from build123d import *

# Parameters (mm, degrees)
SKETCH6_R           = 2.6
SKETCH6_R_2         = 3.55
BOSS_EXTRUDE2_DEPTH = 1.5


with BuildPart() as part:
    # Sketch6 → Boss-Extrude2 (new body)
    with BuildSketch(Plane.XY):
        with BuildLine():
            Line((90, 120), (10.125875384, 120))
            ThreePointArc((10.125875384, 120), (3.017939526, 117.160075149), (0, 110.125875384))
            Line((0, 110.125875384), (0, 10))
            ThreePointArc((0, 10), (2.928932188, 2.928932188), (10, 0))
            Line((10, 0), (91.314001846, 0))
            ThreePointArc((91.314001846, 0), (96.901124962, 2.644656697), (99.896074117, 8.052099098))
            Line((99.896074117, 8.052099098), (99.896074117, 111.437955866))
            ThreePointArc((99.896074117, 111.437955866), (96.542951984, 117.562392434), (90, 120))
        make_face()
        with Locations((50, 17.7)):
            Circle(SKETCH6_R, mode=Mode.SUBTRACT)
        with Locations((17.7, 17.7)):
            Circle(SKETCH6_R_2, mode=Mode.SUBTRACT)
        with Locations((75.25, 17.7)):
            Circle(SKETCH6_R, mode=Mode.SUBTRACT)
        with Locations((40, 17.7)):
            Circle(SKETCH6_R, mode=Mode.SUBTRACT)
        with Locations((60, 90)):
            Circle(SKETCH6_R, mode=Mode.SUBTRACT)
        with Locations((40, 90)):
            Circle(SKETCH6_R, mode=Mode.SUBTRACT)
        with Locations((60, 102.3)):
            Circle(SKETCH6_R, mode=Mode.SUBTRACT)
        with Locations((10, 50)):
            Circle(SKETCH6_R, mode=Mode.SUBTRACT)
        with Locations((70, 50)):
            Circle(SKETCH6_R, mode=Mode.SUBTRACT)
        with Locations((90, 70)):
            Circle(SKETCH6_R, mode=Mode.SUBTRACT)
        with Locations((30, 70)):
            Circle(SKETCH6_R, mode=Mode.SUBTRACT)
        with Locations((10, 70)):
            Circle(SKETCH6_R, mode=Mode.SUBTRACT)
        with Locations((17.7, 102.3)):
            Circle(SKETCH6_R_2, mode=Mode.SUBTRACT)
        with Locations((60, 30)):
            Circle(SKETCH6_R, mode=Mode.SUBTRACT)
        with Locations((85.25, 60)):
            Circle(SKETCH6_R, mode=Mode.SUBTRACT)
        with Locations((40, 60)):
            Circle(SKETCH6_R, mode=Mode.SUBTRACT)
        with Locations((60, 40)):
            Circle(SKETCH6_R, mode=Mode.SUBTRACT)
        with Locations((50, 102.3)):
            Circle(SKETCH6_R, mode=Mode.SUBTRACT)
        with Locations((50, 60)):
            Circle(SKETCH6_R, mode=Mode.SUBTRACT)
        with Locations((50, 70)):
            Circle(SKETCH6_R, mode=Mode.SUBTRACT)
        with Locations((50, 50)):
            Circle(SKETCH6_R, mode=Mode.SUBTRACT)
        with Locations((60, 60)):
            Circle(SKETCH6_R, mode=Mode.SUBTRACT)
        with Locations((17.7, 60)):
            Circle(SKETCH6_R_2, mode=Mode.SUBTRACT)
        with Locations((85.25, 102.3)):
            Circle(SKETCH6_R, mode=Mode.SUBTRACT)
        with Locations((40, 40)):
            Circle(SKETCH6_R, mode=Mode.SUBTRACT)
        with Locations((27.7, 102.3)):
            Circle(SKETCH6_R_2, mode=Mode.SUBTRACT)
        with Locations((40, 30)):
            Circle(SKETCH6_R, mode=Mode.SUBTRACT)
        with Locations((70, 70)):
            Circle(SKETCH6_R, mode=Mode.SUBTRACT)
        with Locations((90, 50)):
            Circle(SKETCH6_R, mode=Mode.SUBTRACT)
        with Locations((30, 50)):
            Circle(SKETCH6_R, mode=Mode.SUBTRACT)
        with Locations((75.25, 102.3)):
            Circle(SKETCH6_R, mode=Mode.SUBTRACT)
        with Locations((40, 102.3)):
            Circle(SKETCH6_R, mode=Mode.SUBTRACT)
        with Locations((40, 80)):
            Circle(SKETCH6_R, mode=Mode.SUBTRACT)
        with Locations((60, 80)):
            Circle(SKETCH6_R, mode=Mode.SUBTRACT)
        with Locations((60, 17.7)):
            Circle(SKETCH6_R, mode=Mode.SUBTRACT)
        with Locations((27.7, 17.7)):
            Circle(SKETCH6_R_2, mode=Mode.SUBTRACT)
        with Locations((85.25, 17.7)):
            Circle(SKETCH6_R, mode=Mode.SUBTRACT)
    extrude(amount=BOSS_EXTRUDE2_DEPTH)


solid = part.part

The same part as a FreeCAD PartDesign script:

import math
import FreeCAD as App
import Part
import Sketcher

V = App.Vector
Q = App.Units.Quantity

doc = App.newDocument("Part")
body = doc.addObject("PartDesign::Body", "Body")

# Sketch on XY plane
sketch1 = doc.addObject("Sketcher::SketchObject", "Sketch")
body.addObject(sketch1)
sketch1.AttachmentSupport = (doc.XY_Plane, [""])
sketch1.MapMode = "FlatFace"
sketch1.addGeometry(Part.LineSegment(V(90, 120, 0), V(10.125875, 120, 0)), False)
sketch1.addGeometry(Part.ArcOfCircle(Part.Circle(V(10, 110, 0), V(0, 0, 1), 10.000792), math.radians(89.278825), math.radians(179.278825)), False)
sketch1.addGeometry(Part.LineSegment(V(0, 110.125875, 0), V(0, 10, 0)), False)
sketch1.addGeometry(Part.ArcOfCircle(Part.Circle(V(10, 10, 0), V(0, 0, 1), 10), math.radians(180), math.radians(270)), False)
sketch1.addGeometry(Part.LineSegment(V(10, 0, 0), V(91.314002, 0, 0)), False)
sketch1.addGeometry(Part.ArcOfCircle(Part.Circle(V(90, 10, 0), V(0, 0, 1), 10.085961), math.radians(-82.514211), math.radians(-11.1355)), False)
sketch1.addGeometry(Part.LineSegment(V(99.896074, 8.052099, 0), V(99.896074, 111.437956, 0)), False)
sketch1.addGeometry(Part.ArcOfCircle(Part.Circle(V(90, 110, 0), V(0, 0, 1), 10), math.radians(8.267541), math.radians(90)), False)
sketch1.addGeometry(Part.Circle(V(17.7, 17.7, 0), V(0, 0, 1), 3.55), False)
sketch1.addGeometry(Part.Circle(V(27.7, 17.7, 0), V(0, 0, 1), 3.55), False)
sketch1.addGeometry(Part.Circle(V(40, 17.7, 0), V(0, 0, 1), 2.6), False)
sketch1.addGeometry(Part.Circle(V(40, 30, 0), V(0, 0, 1), 2.6), False)
sketch1.addGeometry(Part.Circle(V(10, 50, 0), V(0, 0, 1), 2.6), False)
sketch1.addGeometry(Part.Circle(V(40, 40, 0), V(0, 0, 1), 2.6), False)
sketch1.addGeometry(Part.Circle(V(30, 50, 0), V(0, 0, 1), 2.6), False)
sketch1.addGeometry(Part.Circle(V(50, 17.7, 0), V(0, 0, 1), 2.6), False)
sketch1.addGeometry(Part.Circle(V(60, 17.7, 0), V(0, 0, 1), 2.6), False)
sketch1.addGeometry(Part.Circle(V(60, 30, 0), V(0, 0, 1), 2.6), False)
sketch1.addGeometry(Part.Circle(V(75.25, 17.7, 0), V(0, 0, 1), 2.6), False)
sketch1.addGeometry(Part.Circle(V(85.25, 17.7, 0), V(0, 0, 1), 2.6), False)
sketch1.addGeometry(Part.Circle(V(60, 40, 0), V(0, 0, 1), 2.6), False)
sketch1.addGeometry(Part.Circle(V(50, 50, 0), V(0, 0, 1), 2.6), False)
sketch1.addGeometry(Part.Circle(V(70, 50, 0), V(0, 0, 1), 2.6), False)
sketch1.addGeometry(Part.Circle(V(90, 50, 0), V(0, 0, 1), 2.6), False)
sketch1.addGeometry(Part.Circle(V(17.7, 60, 0), V(0, 0, 1), 3.55), False)
sketch1.addGeometry(Part.Circle(V(10, 70, 0), V(0, 0, 1), 2.6), False)
sketch1.addGeometry(Part.Circle(V(30, 70, 0), V(0, 0, 1), 2.6), False)
sketch1.addGeometry(Part.Circle(V(40, 60, 0), V(0, 0, 1), 2.6), False)
sketch1.addGeometry(Part.Circle(V(40, 80, 0), V(0, 0, 1), 2.6), False)
sketch1.addGeometry(Part.Circle(V(17.7, 102.3, 0), V(0, 0, 1), 3.55), False)
sketch1.addGeometry(Part.Circle(V(27.7, 102.3, 0), V(0, 0, 1), 3.55), False)
sketch1.addGeometry(Part.Circle(V(40, 90, 0), V(0, 0, 1), 2.6), False)
sketch1.addGeometry(Part.Circle(V(40, 102.3, 0), V(0, 0, 1), 2.6), False)
sketch1.addGeometry(Part.Circle(V(50, 60, 0), V(0, 0, 1), 2.6), False)
sketch1.addGeometry(Part.Circle(V(60, 60, 0), V(0, 0, 1), 2.6), False)
sketch1.addGeometry(Part.Circle(V(50, 70, 0), V(0, 0, 1), 2.6), False)
sketch1.addGeometry(Part.Circle(V(70, 70, 0), V(0, 0, 1), 2.6), False)
sketch1.addGeometry(Part.Circle(V(60, 80, 0), V(0, 0, 1), 2.6), False)
sketch1.addGeometry(Part.Circle(V(85.25, 60, 0), V(0, 0, 1), 2.6), False)
sketch1.addGeometry(Part.Circle(V(90, 70, 0), V(0, 0, 1), 2.6), False)
sketch1.addGeometry(Part.Circle(V(60, 90, 0), V(0, 0, 1), 2.6), False)
sketch1.addGeometry(Part.Circle(V(50, 102.3, 0), V(0, 0, 1), 2.6), False)
sketch1.addGeometry(Part.Circle(V(60, 102.3, 0), V(0, 0, 1), 2.6), False)
sketch1.addGeometry(Part.Circle(V(75.25, 102.3, 0), V(0, 0, 1), 2.6), False)
sketch1.addGeometry(Part.Circle(V(85.25, 102.3, 0), V(0, 0, 1), 2.6), False)
sketch1.addConstraint(Sketcher.Constraint("Coincident", 0, 2, 1, 1))
sketch1.addConstraint(Sketcher.Constraint("Coincident", 1, 2, 2, 1))
sketch1.addConstraint(Sketcher.Constraint("Tangent", 2, 2, 3, 1))
sketch1.addConstraint(Sketcher.Constraint("Tangent", 3, 2, 4, 1))
sketch1.addConstraint(Sketcher.Constraint("Coincident", 4, 2, 5, 1))
sketch1.addConstraint(Sketcher.Constraint("Coincident", 5, 2, 6, 1))
sketch1.addConstraint(Sketcher.Constraint("Coincident", 6, 2, 7, 1))
sketch1.addConstraint(Sketcher.Constraint("Tangent", 7, 2, 0, 1))
sketch1.addConstraint(Sketcher.Constraint("Horizontal", 0))
sketch1.addConstraint(Sketcher.Constraint("Vertical", 2))
sketch1.addConstraint(Sketcher.Constraint("Horizontal", 4))
sketch1.addConstraint(Sketcher.Constraint("Vertical", 6))
sketch1.addConstraint(Sketcher.Constraint("Equal", 3, 7))
sketch1.addConstraint(Sketcher.Constraint("Equal", 8, 9))
sketch1.addConstraint(Sketcher.Constraint("Equal", 10, 11))
sketch1.addConstraint(Sketcher.Constraint("Equal", 11, 12))
sketch1.addConstraint(Sketcher.Constraint("Equal", 12, 13))
sketch1.addConstraint(Sketcher.Constraint("Equal", 13, 14))
sketch1.addConstraint(Sketcher.Constraint("Equal", 14, 15))
sketch1.addConstraint(Sketcher.Constraint("Equal", 15, 16))
sketch1.addConstraint(Sketcher.Constraint("Equal", 16, 17))
sketch1.addConstraint(Sketcher.Constraint("Equal", 17, 18))
sketch1.addConstraint(Sketcher.Constraint("Equal", 18, 19))
sketch1.addConstraint(Sketcher.Constraint("Equal", 19, 20))
sketch1.addConstraint(Sketcher.Constraint("Equal", 20, 21))
sketch1.addConstraint(Sketcher.Constraint("Equal", 21, 22))
sketch1.addConstraint(Sketcher.Constraint("Equal", 22, 23))
sketch1.addConstraint(Sketcher.Constraint("Equal", 9, 24))
sketch1.addConstraint(Sketcher.Constraint("Equal", 23, 25))
sketch1.addConstraint(Sketcher.Constraint("Equal", 25, 26))
sketch1.addConstraint(Sketcher.Constraint("Equal", 26, 27))
sketch1.addConstraint(Sketcher.Constraint("Equal", 27, 28))
sketch1.addConstraint(Sketcher.Constraint("Equal", 24, 29))
sketch1.addConstraint(Sketcher.Constraint("Equal", 29, 30))
sketch1.addConstraint(Sketcher.Constraint("Equal", 28, 31))
sketch1.addConstraint(Sketcher.Constraint("Equal", 31, 32))
sketch1.addConstraint(Sketcher.Constraint("Equal", 32, 33))
sketch1.addConstraint(Sketcher.Constraint("Equal", 33, 34))
sketch1.addConstraint(Sketcher.Constraint("Equal", 34, 35))
sketch1.addConstraint(Sketcher.Constraint("Equal", 35, 36))
sketch1.addConstraint(Sketcher.Constraint("Equal", 36, 37))
sketch1.addConstraint(Sketcher.Constraint("Equal", 37, 38))
sketch1.addConstraint(Sketcher.Constraint("Equal", 38, 39))
sketch1.addConstraint(Sketcher.Constraint("Equal", 39, 40))
sketch1.addConstraint(Sketcher.Constraint("Equal", 40, 41))
sketch1.addConstraint(Sketcher.Constraint("Equal", 41, 42))
sketch1.addConstraint(Sketcher.Constraint("Equal", 42, 43))
sketch1.addConstraint(Sketcher.Constraint("Equal", 43, 44))
sketch1.addConstraint(Sketcher.Constraint("PointOnObject", 1, 2, -2))
sketch1.addConstraint(Sketcher.Constraint("PointOnObject", 3, 2, -1))
sketch1.addConstraint(Sketcher.Constraint("Horizontal", 3, 3, 5, 3))
sketch1.addConstraint(Sketcher.Constraint("Horizontal", 1, 3, 7, 3))
sketch1.addConstraint(Sketcher.Constraint("Horizontal", 8, 3, 9, 3))
sketch1.addConstraint(Sketcher.Constraint("Horizontal", 9, 3, 10, 3))
sketch1.addConstraint(Sketcher.Constraint("Horizontal", 12, 3, 14, 3))
sketch1.addConstraint(Sketcher.Constraint("Horizontal", 10, 3, 15, 3))
sketch1.addConstraint(Sketcher.Constraint("Horizontal", 15, 3, 16, 3))
sketch1.addConstraint(Sketcher.Constraint("Horizontal", 11, 3, 17, 3))
sketch1.addConstraint(Sketcher.Constraint("Horizontal", 16, 3, 18, 3))
sketch1.addConstraint(Sketcher.Constraint("Horizontal", 18, 3, 19, 3))
sketch1.addConstraint(Sketcher.Constraint("Horizontal", 13, 3, 20, 3))
sketch1.addConstraint(Sketcher.Constraint("Horizontal", 14, 3, 21, 3))
sketch1.addConstraint(Sketcher.Constraint("Horizontal", 21, 3, 22, 3))
sketch1.addConstraint(Sketcher.Constraint("Horizontal", 22, 3, 23, 3))
sketch1.addConstraint(Sketcher.Constraint("Horizontal", 25, 3, 26, 3))
sketch1.addConstraint(Sketcher.Constraint("Horizontal", 24, 3, 27, 3))
sketch1.addConstraint(Sketcher.Constraint("Horizontal", 29, 3, 30, 3))
sketch1.addConstraint(Sketcher.Constraint("Horizontal", 30, 3, 32, 3))
sketch1.addConstraint(Sketcher.Constraint("Horizontal", 27, 3, 33, 3))
sketch1.addConstraint(Sketcher.Constraint("Horizontal", 33, 3, 34, 3))
sketch1.addConstraint(Sketcher.Constraint("Horizontal", 26, 3, 35, 3))
sketch1.addConstraint(Sketcher.Constraint("Horizontal", 35, 3, 36, 3))
sketch1.addConstraint(Sketcher.Constraint("Horizontal", 28, 3, 37, 3))
sketch1.addConstraint(Sketcher.Constraint("Horizontal", 34, 3, 38, 3))
sketch1.addConstraint(Sketcher.Constraint("Horizontal", 36, 3, 39, 3))
sketch1.addConstraint(Sketcher.Constraint("Horizontal", 31, 3, 40, 3))
sketch1.addConstraint(Sketcher.Constraint("Horizontal", 32, 3, 41, 3))
sketch1.addConstraint(Sketcher.Constraint("Horizontal", 41, 3, 42, 3))
sketch1.addConstraint(Sketcher.Constraint("Horizontal", 42, 3, 43, 3))
sketch1.addConstraint(Sketcher.Constraint("Horizontal", 43, 3, 44, 3))
sketch1.addConstraint(Sketcher.Constraint("Vertical", 1, 3, 3, 3))
sketch1.addConstraint(Sketcher.Constraint("Vertical", 5, 3, 7, 3))
sketch1.addConstraint(Sketcher.Constraint("Vertical", 10, 3, 11, 3))
sketch1.addConstraint(Sketcher.Constraint("Vertical", 3, 3, 12, 3))
sketch1.addConstraint(Sketcher.Constraint("Vertical", 11, 3, 13, 3))
sketch1.addConstraint(Sketcher.Constraint("Vertical", 16, 3, 17, 3))
sketch1.addConstraint(Sketcher.Constraint("Vertical", 17, 3, 20, 3))
sketch1.addConstraint(Sketcher.Constraint("Vertical", 15, 3, 21, 3))
sketch1.addConstraint(Sketcher.Constraint("Vertical", 7, 3, 23, 3))
sketch1.addConstraint(Sketcher.Constraint("Vertical", 8, 3, 24, 3))
sketch1.addConstraint(Sketcher.Constraint("Vertical", 12, 3, 25, 3))
sketch1.addConstraint(Sketcher.Constraint("Vertical", 14, 3, 26, 3))
sketch1.addConstraint(Sketcher.Constraint("Vertical", 13, 3, 27, 3))
sketch1.addConstraint(Sketcher.Constraint("Vertical", 27, 3, 28, 3))
sketch1.addConstraint(Sketcher.Constraint("Vertical", 24, 3, 29, 3))
sketch1.addConstraint(Sketcher.Constraint("Vertical", 9, 3, 30, 3))
sketch1.addConstraint(Sketcher.Constraint("Vertical", 28, 3, 31, 3))
sketch1.addConstraint(Sketcher.Constraint("Vertical", 31, 3, 32, 3))
sketch1.addConstraint(Sketcher.Constraint("Vertical", 21, 3, 33, 3))
sketch1.addConstraint(Sketcher.Constraint("Vertical", 20, 3, 34, 3))
sketch1.addConstraint(Sketcher.Constraint("Vertical", 33, 3, 35, 3))
sketch1.addConstraint(Sketcher.Constraint("Vertical", 22, 3, 36, 3))
sketch1.addConstraint(Sketcher.Constraint("Vertical", 34, 3, 37, 3))
sketch1.addConstraint(Sketcher.Constraint("Vertical", 19, 3, 38, 3))
sketch1.addConstraint(Sketcher.Constraint("Vertical", 23, 3, 39, 3))
sketch1.addConstraint(Sketcher.Constraint("Vertical", 37, 3, 40, 3))
sketch1.addConstraint(Sketcher.Constraint("Vertical", 35, 3, 41, 3))
sketch1.addConstraint(Sketcher.Constraint("Vertical", 40, 3, 42, 3))
sketch1.addConstraint(Sketcher.Constraint("Vertical", 18, 3, 43, 3))
sketch1.addConstraint(Sketcher.Constraint("Vertical", 38, 3, 44, 3))
sketch1.addConstraint(Sketcher.Constraint("Radius", 3, Q("10 mm")))
sketch1.addConstraint(Sketcher.Constraint("Diameter", 8, Q("7.1 mm")))
sketch1.addConstraint(Sketcher.Constraint("Diameter", 10, Q("5.2 mm")))
sketch1.addConstraint(Sketcher.Constraint("DistanceY", -1, 1, 1, 3, Q("110 mm")))
sketch1.addConstraint(Sketcher.Constraint("DistanceX", -1, 1, 5, 3, Q("90 mm")))
sketch1.addConstraint(Sketcher.Constraint("DistanceX", -1, 1, 10, 3, Q("40 mm")))
sketch1.addConstraint(Sketcher.Constraint("DistanceY", -1, 1, 11, 3, Q("30 mm")))
sketch1.addConstraint(Sketcher.Constraint("DistanceY", -1, 1, 12, 3, Q("50 mm")))
sketch1.addConstraint(Sketcher.Constraint("DistanceY", -1, 1, 13, 3, Q("40 mm")))
sketch1.addConstraint(Sketcher.Constraint("DistanceX", -1, 1, 14, 3, Q("30 mm")))
sketch1.addConstraint(Sketcher.Constraint("DistanceX", -1, 1, 15, 3, Q("50 mm")))
sketch1.addConstraint(Sketcher.Constraint("DistanceX", -1, 1, 16, 3, Q("60 mm")))
sketch1.addConstraint(Sketcher.Constraint("DistanceX", -1, 1, 22, 3, Q("70 mm")))
sketch1.addConstraint(Sketcher.Constraint("DistanceY", -1, 1, 24, 3, Q("60 mm")))
sketch1.addConstraint(Sketcher.Constraint("DistanceY", -1, 1, 25, 3, Q("70 mm")))
sketch1.addConstraint(Sketcher.Constraint("DistanceY", -1, 1, 28, 3, Q("80 mm")))
sketch1.addConstraint(Sketcher.Constraint("DistanceY", -1, 1, 31, 3, Q("90 mm")))
sketch1.addConstraint(Sketcher.Constraint("DistanceX", 8, 3, 9, 3, Q("10 mm")))
sketch1.addConstraint(Sketcher.Constraint("DistanceX", 18, 3, 19, 3, Q("10 mm")))
sketch1.addConstraint(Sketcher.Constraint("DistanceX", -1, 1, 8, 3, Q("17.7 mm")))
sketch1.addConstraint(Sketcher.Constraint("DistanceY", -1, 1, 8, 3, Q("17.7 mm")))
sketch1.addConstraint(Sketcher.Constraint("DistanceY", -1, 1, 29, 3, Q("102.3 mm")))
sketch1.addConstraint(Sketcher.Constraint("DistanceX", 4, 1, 4, 2, Q("81.314002 mm")))
sketch1.addConstraint(Sketcher.Constraint("DistanceX", -1, 1, 18, 3, Q("75.25 mm")))
sketch1.addConstraint(Sketcher.Constraint("Radius", 1, Q("10.000792 mm")))
sketch1.addConstraint(Sketcher.Constraint("DistanceY", -1, 1, 5, 2, Q("8.052099 mm")))
pad1 = doc.addObject("PartDesign::Pad", "Pad")
body.addObject(pad1)
pad1.Profile = sketch1
pad1.Length = 1.5

doc.recompute()
